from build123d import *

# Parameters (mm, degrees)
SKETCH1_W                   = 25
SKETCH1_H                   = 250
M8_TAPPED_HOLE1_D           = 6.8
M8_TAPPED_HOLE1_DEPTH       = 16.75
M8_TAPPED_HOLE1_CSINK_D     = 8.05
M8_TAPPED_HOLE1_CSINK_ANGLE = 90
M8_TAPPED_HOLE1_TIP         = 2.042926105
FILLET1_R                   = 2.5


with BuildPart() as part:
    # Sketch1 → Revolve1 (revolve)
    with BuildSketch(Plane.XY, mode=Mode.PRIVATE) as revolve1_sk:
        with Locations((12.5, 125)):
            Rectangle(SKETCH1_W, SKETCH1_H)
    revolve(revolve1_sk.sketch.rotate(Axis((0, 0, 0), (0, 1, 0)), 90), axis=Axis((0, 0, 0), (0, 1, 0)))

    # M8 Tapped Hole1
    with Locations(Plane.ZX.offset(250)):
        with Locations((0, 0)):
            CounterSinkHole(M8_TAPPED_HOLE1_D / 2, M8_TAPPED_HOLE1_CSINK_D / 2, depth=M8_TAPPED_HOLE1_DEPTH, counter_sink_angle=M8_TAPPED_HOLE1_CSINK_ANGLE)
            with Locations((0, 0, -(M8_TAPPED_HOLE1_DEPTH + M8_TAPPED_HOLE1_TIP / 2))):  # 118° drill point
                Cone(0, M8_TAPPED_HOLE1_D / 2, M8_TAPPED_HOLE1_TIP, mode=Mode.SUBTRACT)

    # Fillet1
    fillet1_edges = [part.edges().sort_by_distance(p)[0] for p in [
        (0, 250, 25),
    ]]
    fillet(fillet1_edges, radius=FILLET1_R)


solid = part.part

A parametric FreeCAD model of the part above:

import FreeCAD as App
import Part
import Sketcher


def edges_at(feature, points):
    """Names of the edges that pass closest to the given points."""
    edges = feature.Shape.Edges
    near = lambda p: min(range(len(edges)), key=lambda i: edges[i].distToShape(Part.Vertex(*p))[0])
    return sorted({f"Edge{near(p) + 1}" for p in points})


def add_polygon(sketch, points):
    """Adds a closed chain of lines whose ends are joined by coincident constraints."""
    first, n = sketch.GeometryCount, len(points)
    for a, b in zip(points, points[1:] + points[:1]):
        sketch.addGeometry(Part.LineSegment(App.Vector(*a, 0), App.Vector(*b, 0)), False)
    for i in range(n):
        sketch.addConstraint(Sketcher.Constraint("Coincident", first + i, 2, first + (i + 1) % n, 1))

doc = App.newDocument("Part")
body = doc.addObject("PartDesign::Body", "Body")

sketch1 = body.newObject("Sketcher::SketchObject", "Sketch")
sketch1.AttachmentSupport = (doc.getObject("XY_Plane"), [""])
sketch1.MapMode = "FlatFace"
add_polygon(sketch1, [(0, 250), (0, 0), (25, 0), (25, 250)])
sketch1.addConstraint([
    Sketcher.Constraint("Vertical", 0),
    Sketcher.Constraint("Horizontal", 1),
    Sketcher.Constraint("Vertical", 2),
    Sketcher.Constraint("Horizontal", 3),
    Sketcher.Constraint("Coincident", 0, 2, -1, 1),
    Sketcher.Constraint("DistanceX", 1, 1, 1, 2, 25.0),
    Sketcher.Constraint("DistanceY", 0, 2, 0, 1, 250.0),
])
revolution = body.newObject("PartDesign::Revolution", "Revolution")
revolution.Profile = sketch1
revolution.ReferenceAxis = (sketch1, ["V_Axis"])
revolution.Angle = 360

sketch2 = body.newObject("Sketcher::SketchObject", "Sketch001")
sketch2.AttachmentSupport = (doc.getObject("XZ_Plane"), [""])
sketch2.MapMode = "FlatFace"
sketch2.AttachmentOffset = App.Placement(App.Vector(0, 0, -250), App.Rotation())
sketch2.addGeometry(Part.Circle(App.Vector(0, 0, 0), App.Vector(0, 0, 1), 3.4), False)
sketch2.addConstraint([
    Sketcher.Constraint("Coincident", 0, 3, -1, 1),
    Sketcher.Constraint("Diameter", 0, 6.8),
])
doc.recompute()
hole = body.newObject("PartDesign::Hole", "Hole")
hole.Profile = sketch2
hole.ThreadType = "None"
hole.Diameter = 6.8
hole.DepthType = "Dimension"
hole.Depth = 16.75
hole.DrillPoint = "Angled"
hole.DrillPointAngle = 118
hole.HoleCutType = "Countersink"
hole.HoleCutDiameter = 8.05
hole.HoleCutCountersinkAngle = 90
hole.Reversed = True
doc.recompute()

fillet = body.newObject("PartDesign::Fillet", "Fillet")
fillet.Base = (hole, edges_at(hole, [(0, 250, 25)]))
fillet.Radius = 2.5

doc.recompute()
